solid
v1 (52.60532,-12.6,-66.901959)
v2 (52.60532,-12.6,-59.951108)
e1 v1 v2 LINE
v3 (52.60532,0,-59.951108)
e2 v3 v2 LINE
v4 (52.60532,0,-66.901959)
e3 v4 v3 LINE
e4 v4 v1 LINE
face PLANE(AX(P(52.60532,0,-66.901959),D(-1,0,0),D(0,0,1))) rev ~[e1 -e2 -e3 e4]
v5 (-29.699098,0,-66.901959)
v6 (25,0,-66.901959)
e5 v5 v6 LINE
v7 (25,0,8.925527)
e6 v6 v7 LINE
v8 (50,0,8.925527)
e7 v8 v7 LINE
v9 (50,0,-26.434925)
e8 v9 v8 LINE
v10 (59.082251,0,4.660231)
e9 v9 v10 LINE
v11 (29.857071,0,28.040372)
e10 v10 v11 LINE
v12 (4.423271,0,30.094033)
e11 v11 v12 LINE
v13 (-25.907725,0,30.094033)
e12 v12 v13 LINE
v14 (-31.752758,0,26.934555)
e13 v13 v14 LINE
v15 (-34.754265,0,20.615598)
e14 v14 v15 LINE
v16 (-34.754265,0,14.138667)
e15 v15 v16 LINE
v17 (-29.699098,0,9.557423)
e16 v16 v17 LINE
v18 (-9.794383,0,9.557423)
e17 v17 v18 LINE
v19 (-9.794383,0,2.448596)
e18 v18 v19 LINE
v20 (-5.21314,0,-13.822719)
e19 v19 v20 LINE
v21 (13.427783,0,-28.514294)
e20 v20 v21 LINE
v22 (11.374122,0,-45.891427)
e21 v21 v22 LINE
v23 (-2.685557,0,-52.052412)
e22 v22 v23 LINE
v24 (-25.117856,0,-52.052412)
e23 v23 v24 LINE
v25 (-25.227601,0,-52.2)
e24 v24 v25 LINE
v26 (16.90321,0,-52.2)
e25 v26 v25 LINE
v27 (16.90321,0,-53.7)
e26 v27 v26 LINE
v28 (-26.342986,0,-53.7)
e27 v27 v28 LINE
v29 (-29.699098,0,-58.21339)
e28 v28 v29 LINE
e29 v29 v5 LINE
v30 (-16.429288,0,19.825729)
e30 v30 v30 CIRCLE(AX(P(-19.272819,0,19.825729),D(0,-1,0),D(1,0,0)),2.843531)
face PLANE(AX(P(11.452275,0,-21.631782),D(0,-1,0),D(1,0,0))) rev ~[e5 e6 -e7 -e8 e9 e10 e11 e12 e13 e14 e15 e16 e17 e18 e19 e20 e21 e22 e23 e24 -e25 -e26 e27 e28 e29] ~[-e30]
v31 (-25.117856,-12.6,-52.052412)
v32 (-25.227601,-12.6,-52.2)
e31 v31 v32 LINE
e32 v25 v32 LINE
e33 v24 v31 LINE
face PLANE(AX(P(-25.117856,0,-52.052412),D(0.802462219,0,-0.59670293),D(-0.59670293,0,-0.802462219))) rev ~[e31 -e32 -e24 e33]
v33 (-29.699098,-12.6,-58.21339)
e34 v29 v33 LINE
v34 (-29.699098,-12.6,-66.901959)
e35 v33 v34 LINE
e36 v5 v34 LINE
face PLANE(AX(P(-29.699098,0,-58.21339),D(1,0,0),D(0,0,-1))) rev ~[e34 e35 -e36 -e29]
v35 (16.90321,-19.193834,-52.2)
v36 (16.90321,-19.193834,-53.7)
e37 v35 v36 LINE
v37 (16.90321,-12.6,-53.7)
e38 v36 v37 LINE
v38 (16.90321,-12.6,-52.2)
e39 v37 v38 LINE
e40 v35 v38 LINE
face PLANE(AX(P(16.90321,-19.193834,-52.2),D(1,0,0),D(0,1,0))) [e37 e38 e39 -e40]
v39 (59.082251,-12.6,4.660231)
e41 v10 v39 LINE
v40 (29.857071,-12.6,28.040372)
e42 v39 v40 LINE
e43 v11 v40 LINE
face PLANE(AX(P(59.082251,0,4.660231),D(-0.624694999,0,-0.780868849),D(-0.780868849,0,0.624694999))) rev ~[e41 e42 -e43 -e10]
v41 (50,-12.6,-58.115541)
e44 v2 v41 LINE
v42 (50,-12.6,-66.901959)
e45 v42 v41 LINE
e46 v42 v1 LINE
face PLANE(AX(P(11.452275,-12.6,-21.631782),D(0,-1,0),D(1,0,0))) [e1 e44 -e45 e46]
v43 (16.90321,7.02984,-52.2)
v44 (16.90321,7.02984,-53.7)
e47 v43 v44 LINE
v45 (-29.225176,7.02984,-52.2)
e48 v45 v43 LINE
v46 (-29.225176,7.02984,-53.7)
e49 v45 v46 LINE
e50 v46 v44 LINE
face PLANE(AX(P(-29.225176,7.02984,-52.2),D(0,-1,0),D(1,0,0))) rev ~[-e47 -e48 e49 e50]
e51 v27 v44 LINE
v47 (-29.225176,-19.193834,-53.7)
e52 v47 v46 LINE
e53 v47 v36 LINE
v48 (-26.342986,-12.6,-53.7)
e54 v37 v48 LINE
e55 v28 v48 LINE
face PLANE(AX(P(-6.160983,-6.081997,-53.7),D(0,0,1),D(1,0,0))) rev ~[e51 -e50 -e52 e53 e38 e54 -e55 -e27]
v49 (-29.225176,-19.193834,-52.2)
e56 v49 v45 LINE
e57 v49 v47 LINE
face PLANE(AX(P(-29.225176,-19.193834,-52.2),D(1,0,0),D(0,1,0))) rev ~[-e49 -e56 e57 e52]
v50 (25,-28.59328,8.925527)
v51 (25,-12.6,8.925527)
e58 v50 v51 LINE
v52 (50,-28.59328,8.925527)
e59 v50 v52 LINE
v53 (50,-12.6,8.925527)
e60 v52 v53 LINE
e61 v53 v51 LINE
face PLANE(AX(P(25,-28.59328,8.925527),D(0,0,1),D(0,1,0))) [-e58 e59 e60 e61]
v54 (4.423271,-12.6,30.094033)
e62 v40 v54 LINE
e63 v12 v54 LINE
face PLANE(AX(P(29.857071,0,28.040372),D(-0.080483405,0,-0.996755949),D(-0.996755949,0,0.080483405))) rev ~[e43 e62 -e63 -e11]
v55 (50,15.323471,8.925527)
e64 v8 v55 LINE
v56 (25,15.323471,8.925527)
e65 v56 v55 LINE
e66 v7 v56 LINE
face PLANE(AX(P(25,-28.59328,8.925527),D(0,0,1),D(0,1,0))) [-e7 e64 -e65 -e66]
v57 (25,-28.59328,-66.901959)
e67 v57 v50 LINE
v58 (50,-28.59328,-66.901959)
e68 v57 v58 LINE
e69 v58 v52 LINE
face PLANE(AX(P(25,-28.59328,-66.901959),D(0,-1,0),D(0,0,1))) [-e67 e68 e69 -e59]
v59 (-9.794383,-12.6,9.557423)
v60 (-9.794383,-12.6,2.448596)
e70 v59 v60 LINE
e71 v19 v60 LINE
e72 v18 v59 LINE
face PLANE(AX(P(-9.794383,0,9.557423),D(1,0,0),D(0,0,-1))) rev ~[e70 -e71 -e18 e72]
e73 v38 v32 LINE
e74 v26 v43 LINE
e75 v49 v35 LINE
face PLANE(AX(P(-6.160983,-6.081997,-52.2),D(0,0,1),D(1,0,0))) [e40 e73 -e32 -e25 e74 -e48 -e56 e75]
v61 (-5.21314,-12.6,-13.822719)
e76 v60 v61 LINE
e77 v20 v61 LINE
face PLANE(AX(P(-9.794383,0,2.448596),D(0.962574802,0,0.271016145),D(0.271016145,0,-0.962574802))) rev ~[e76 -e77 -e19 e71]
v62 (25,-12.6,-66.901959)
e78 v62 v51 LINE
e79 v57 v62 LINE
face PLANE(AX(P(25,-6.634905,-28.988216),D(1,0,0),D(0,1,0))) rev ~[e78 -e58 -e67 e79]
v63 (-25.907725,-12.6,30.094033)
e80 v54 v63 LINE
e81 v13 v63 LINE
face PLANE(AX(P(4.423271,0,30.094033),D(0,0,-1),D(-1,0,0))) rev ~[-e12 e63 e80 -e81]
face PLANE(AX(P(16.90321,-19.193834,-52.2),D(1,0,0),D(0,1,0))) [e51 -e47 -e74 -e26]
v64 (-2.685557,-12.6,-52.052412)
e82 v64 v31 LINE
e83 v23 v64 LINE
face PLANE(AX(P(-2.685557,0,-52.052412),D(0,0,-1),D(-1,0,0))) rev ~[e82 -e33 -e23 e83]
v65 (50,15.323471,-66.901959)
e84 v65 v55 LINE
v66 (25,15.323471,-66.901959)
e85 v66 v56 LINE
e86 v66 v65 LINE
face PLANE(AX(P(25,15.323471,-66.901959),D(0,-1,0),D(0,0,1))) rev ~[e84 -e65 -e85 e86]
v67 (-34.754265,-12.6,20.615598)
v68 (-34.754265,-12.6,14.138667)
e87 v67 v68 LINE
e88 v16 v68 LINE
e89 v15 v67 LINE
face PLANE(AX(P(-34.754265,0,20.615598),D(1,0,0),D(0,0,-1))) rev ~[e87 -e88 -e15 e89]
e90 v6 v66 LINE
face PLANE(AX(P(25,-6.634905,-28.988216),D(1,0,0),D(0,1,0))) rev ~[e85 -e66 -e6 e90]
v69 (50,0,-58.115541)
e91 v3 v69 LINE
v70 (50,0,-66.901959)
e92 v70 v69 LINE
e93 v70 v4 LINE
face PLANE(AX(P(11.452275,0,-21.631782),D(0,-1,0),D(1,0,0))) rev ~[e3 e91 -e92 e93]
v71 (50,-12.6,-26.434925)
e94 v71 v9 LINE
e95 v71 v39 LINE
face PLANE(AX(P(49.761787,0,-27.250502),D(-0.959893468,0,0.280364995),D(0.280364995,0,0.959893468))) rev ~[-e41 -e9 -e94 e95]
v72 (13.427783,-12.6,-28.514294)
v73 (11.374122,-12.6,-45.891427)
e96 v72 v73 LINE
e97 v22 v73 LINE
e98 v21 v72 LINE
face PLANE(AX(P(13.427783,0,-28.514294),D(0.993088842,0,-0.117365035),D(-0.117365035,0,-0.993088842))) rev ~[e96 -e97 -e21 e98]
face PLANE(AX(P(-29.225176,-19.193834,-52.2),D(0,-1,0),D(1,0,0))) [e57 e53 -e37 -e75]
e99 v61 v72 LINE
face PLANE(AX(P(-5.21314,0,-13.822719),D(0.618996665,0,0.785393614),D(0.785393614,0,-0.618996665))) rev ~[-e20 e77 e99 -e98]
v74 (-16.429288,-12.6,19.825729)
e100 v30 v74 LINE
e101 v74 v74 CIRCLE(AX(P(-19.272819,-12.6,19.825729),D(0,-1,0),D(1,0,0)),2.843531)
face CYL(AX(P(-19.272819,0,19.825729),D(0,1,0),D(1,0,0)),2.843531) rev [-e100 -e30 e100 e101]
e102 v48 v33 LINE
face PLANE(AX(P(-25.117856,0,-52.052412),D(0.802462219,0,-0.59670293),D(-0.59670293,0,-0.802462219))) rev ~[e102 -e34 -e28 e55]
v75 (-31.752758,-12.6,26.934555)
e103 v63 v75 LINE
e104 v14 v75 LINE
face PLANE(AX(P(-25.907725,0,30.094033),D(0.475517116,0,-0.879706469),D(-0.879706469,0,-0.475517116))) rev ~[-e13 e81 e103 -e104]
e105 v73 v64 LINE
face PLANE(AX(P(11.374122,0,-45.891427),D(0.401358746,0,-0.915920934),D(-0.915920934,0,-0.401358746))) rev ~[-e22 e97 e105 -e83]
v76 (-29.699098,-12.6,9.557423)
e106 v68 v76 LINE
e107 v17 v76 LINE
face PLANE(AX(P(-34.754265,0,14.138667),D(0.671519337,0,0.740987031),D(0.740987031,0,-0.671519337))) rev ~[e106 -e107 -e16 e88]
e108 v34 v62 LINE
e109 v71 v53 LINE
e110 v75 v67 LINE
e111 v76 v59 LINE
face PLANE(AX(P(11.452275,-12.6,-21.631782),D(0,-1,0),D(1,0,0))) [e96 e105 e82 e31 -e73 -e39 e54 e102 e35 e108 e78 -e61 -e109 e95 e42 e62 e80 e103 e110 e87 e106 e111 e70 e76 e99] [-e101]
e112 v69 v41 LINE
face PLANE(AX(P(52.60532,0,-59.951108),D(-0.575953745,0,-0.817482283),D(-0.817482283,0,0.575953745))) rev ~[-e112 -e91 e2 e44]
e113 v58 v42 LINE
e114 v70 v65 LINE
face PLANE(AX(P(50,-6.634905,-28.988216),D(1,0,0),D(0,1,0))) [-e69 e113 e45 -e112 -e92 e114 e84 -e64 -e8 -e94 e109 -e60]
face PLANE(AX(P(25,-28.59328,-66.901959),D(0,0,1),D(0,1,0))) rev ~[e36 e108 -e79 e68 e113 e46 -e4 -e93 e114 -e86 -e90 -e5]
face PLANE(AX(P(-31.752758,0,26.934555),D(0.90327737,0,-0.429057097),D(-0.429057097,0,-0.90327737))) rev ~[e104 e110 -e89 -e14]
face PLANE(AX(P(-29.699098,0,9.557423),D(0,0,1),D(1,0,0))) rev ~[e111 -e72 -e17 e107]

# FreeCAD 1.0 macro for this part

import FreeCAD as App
import Part
import Sketcher
Q = App.Units.Quantity


def add_polygon(sketch, points):
    """Adds a closed chain of lines whose ends are joined by coincident constraints."""
    first, n = sketch.GeometryCount, len(points)
    for a, b in zip(points, points[1:] + points[:1]):
        sketch.addGeometry(Part.LineSegment(App.Vector(*a, 0), App.Vector(*b, 0)), False)
    for i in range(n):
        sketch.addConstraint(Sketcher.Constraint("Coincident", first + i, 2, first + (i + 1) % n, 1))

doc = App.newDocument("Part")
body = doc.addObject("PartDesign::Body", "Body")

sketch1 = body.newObject("Sketcher::SketchObject", "Sketch")
sketch1.AttachmentSupport = (doc.getObject("XZ_Plane"), [""])
sketch1.MapMode = "FlatFace"
add_polygon(sketch1, [(52.60532, -59.951108), (45.654465, -55.053912), (49.761787, -27.250502), (59.082251, 4.660231), (29.857071, 28.040372), (4.423271, 30.094033), (-25.907725, 30.094033), (-31.752758, 26.934555), (-34.754265, 20.615598), (-34.754265, 14.138667), (-29.699098, 9.557423), (-9.794383, 9.557423), (-9.794383, 2.448596), (-5.21314, -13.822719), (13.427783, -28.514294), (11.374122, -45.891427), (-2.685557, -52.052412), (-25.117856, -52.052412), (-29.699098, -58.21339), (-29.699098, -66.901959), (52.60532, -66.901959)])
sketch1.addGeometry(Part.Circle(App.Vector(-19.272819, 19.825729, 0), App.Vector(0, 0, 1), 2.843531), False)
sketch1.addConstraint(Sketcher.Constraint("Horizontal", 5))
sketch1.addConstraint(Sketcher.Constraint("Vertical", 8))
sketch1.addConstraint(Sketcher.Constraint("Horizontal", 10))
sketch1.addConstraint(Sketcher.Constraint("Vertical", 11))
sketch1.addConstraint(Sketcher.Constraint("Horizontal", 16))
sketch1.addConstraint(Sketcher.Constraint("Vertical", 18))
sketch1.addConstraint(Sketcher.Constraint("Horizontal", 19))
sketch1.addConstraint(Sketcher.Constraint("Vertical", 20))
sketch1.addConstraint(Sketcher.Constraint("Vertical", 9, 2, 17, 2))
sketch1.addConstraint(Sketcher.Constraint("Diameter", 21, Q("5.687062 mm")))
sketch1.addConstraint(Sketcher.Constraint("DistanceX", 16, 2, 16, 1, Q("22.432299 mm")))
sketch1.addConstraint(Sketcher.Constraint("DistanceY", 11, 2, 7, 2, Q("18.167002 mm")))
sketch1.addConstraint(Sketcher.Constraint("Distance", 6, Q("6.644299 mm")))
sketch1.addConstraint(Sketcher.Constraint("DistanceX", 19, 1, 19, 2, Q("82.304418 mm")))
sketch1.addConstraint(Sketcher.Constraint("DistanceY", 8, 2, 8, 1, Q("6.476931 mm")))
sketch1.addConstraint(Sketcher.Constraint("DistanceY", 18, 2, 18, 1, Q("8.688569 mm")))
sketch1.addConstraint(Sketcher.Constraint("DistanceY", 20, 1, 20, 2, Q("6.950851 mm")))
sketch1.addConstraint(Sketcher.Constraint("DistanceX", 4, 2, 3, 2, Q("25.4338 mm")))
sketch1.addConstraint(Sketcher.Constraint("DistanceY", 2, 2, 4, 2, Q("25.433802 mm")))
sketch1.addConstraint(Sketcher.Constraint("DistanceY", 0, 2, 15, 2, Q("3.0015 mm")))
sketch1.addConstraint(Sketcher.Constraint("Distance", 0, Q("8.502759 mm")))
sketch1.addConstraint(Sketcher.Constraint("Distance", 3, Q("37.42649 mm")))
sketch1.addConstraint(Sketcher.Constraint("Distance", 7, Q("6.995589 mm")))
sketch1.addConstraint(Sketcher.Constraint("Distance", 12, Q("16.903949 mm")))
sketch1.addConstraint(Sketcher.Constraint("Distance", 15, Q("15.35032 mm")))
sketch1.addConstraint(Sketcher.Constraint("DistanceX", 5, 2, 5, 1, Q("30.330996 mm")))
sketch1.addConstraint(Sketcher.Constraint("DistanceX", 10, 1, 10, 2, Q("19.904715 mm")))
sketch1.addConstraint(Sketcher.Constraint("DistanceY", 11, 2, 11, 1, Q("7.108827 mm")))
sketch1.addConstraint(Sketcher.Constraint("DistanceX", 21, 3, -1, 1, Q("19.272819 mm")))
sketch1.addConstraint(Sketcher.Constraint("DistanceY", -1, 1, 21, 3, Q("19.825729 mm")))
sketch1.addConstraint(Sketcher.Constraint("DistanceY", 0, 2, -1, 1, Q("55.053912 mm")))
sketch1.addConstraint(Sketcher.Constraint("DistanceX", -1, 1, 2, 2, Q("59.082251 mm")))
sketch1.addConstraint(Sketcher.Constraint("DistanceY", -1, 1, 2, 2, Q("4.660231 mm")))
sketch1.addConstraint(Sketcher.Constraint("DistanceX", -1, 1, 3, 2, Q("29.857071 mm")))
sketch1.addConstraint(Sketcher.Constraint("DistanceX", 6, 2, -1, 1, Q("31.752758 mm")))
sketch1.addConstraint(Sketcher.Constraint("DistanceX", 12, 2, -1, 1, Q("5.21314 mm")))
sketch1.addConstraint(Sketcher.Constraint("DistanceY", 12, 2, -1, 1, Q("13.822719 mm")))
sketch1.addConstraint(Sketcher.Constraint("DistanceY", 17, 2, -1, 1, Q("58.21339 mm")))
sketch1.addConstraint(Sketcher.Constraint("DistanceX", -1, 1, 19, 2, Q("52.60532 mm")))
sketch1.addConstraint(Sketcher.Constraint("DistanceX", 0, 2, 1, 2, Q("4.107322 mm")))
sketch1.addConstraint(Sketcher.Constraint("DistanceY", 0, 2, 1, 2, Q("27.80341 mm")))
sketch1.addConstraint(Sketcher.Constraint("DistanceY", 13, 2, 1, 2, Q("1.263792 mm")))
sketch1.addConstraint(Sketcher.Constraint("DistanceX", 14, 2, 13, 2, Q("2.053661 mm")))
sketch1.addConstraint(Sketcher.Constraint("DistanceX", 12, 2, 14, 2, Q("16.587262 mm")))
sketch1.addConstraint(Sketcher.Constraint("DistanceX", 15, 2, 14, 2, Q("14.059679 mm")))
pad1 = body.newObject("PartDesign::Pad", "Pad")
pad1.Profile = sketch1
pad1.Length = 12.6

sketch2 = body.newObject("Sketcher::SketchObject", "Sketch001")
sketch2.AttachmentSupport = (doc.getObject("YZ_Plane"), [""])
sketch2.MapMode = "FlatFace"
sketch2.AttachmentOffset = App.Placement(App.Vector(0, 0, 25), App.Rotation())
add_polygon(sketch2, [(-28.59328, 8.925527), (-28.59328, -66.901959), (15.323471, -66.901959), (15.323471, 8.925527)])
sketch2.addConstraint(Sketcher.Constraint("Vertical", 0))
sketch2.addConstraint(Sketcher.Constraint("Horizontal", 1))
sketch2.addConstraint(Sketcher.Constraint("Vertical", 2))
sketch2.addConstraint(Sketcher.Constraint("Horizontal", 3))
sketch2.addConstraint(Sketcher.Constraint("DistanceX", 1, 1, 1, 2, Q("43.916751 mm")))
sketch2.addConstraint(Sketcher.Constraint("DistanceY", 0, 2, 0, 1, Q("75.827486 mm")))
sketch2.addConstraint(Sketcher.Constraint("DistanceX", 0, 2, -1, 1, Q("28.59328 mm")))
sketch2.addConstraint(Sketcher.Constraint("DistanceY", 0, 2, -1, 1, Q("66.901959 mm")))
pad2 = body.newObject("PartDesign::Pad", "Pad001")
pad2.Profile = sketch2
pad2.Length = 25

sketch3 = body.newObject("Sketcher::SketchObject", "Sketch002")
sketch3.AttachmentSupport = (doc.getObject("XY_Plane"), [""])
sketch3.MapMode = "FlatFace"
sketch3.AttachmentOffset = App.Placement(App.Vector(0, 0, -52.2), App.Rotation())
add_polygon(sketch3, [(-29.225176, 7.02984), (-29.225176, -19.193834), (16.90321, -19.193834), (16.90321, 7.02984)])
sketch3.addConstraint(Sketcher.Constraint("Vertical", 0))
sketch3.addConstraint(Sketcher.Constraint("Horizontal", 1))
sketch3.addConstraint(Sketcher.Constraint("Vertical", 2))
sketch3.addConstraint(Sketcher.Constraint("Horizontal", 3))
sketch3.addConstraint(Sketcher.Constraint("DistanceX", 1, 1, 1, 2, Q("46.128386 mm")))
sketch3.addConstraint(Sketcher.Constraint("DistanceY", 0, 2, 0, 1, Q("26.223674 mm")))
sketch3.addConstraint(Sketcher.Constraint("DistanceX", -1, 1, 1, 2, Q("16.90321 mm")))
sketch3.addConstraint(Sketcher.Constraint("DistanceY", -1, 1, 2, 2, Q("7.02984 mm")))
pad3 = body.newObject("PartDesign::Pad", "Pad002")
pad3.Profile = sketch3
pad3.Length = 1.5
pad3.Reversed = True

doc.recompute()
